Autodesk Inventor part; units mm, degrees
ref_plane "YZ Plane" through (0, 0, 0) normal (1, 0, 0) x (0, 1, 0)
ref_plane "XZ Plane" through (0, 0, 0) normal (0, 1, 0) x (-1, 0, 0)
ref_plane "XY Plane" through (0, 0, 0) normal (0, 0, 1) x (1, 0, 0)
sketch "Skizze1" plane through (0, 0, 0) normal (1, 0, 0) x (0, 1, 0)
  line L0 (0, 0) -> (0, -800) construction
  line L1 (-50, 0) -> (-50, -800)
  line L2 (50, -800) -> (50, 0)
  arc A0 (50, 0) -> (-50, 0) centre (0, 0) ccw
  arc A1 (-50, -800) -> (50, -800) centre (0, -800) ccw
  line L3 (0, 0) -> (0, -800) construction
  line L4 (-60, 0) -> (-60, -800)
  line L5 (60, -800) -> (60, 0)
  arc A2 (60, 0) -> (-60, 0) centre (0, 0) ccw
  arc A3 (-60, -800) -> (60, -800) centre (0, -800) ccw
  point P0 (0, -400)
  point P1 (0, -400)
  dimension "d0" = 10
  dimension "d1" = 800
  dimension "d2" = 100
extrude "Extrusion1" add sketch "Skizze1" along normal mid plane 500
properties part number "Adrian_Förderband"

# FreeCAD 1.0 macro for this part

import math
import FreeCAD as App
import Part
import Sketcher
Q = App.Units.Quantity

doc = App.newDocument("Part")
params = doc.addObject("Spreadsheet::Sheet", "Params")
for row, (alias, value) in enumerate([
    ("sketch1_radius", "50 mm"),
    ("sketch1_height", "800 mm"),
    ("sketch1_radius2", "60 mm"),
    ("pad1_length", "500 mm"),
], start=1):
    params.set(f"A{row}", alias)
    params.set(f"B{row}", "=" + value)
    params.setAlias(f"B{row}", alias)

body = doc.addObject("PartDesign::Body", "Body")

# Sketch on YZ plane
sketch1 = doc.addObject("Sketcher::SketchObject", "Sketch")
body.addObject(sketch1)
sketch1.AttachmentSupport = (doc.YZ_Plane, [""])
sketch1.MapMode = "FlatFace"
sketch1.addGeometry([
    Part.ArcOfCircle(Part.Circle(App.Vector(0, 0, 0), App.Vector(0, 0, 1), 60), math.radians(0), math.radians(180)),  # 0
    Part.LineSegment(App.Vector(-60, 0, 0), App.Vector(-60, -800, 0)),  # 1
    Part.ArcOfCircle(Part.Circle(App.Vector(0, -800, 0), App.Vector(0, 0, 1), 60), math.radians(180), math.radians(360)),  # 2
    Part.LineSegment(App.Vector(60, -800, 0), App.Vector(60, 0, 0)),  # 3
    Part.LineSegment(App.Vector(-50, -800, 0), App.Vector(-50, 0, 0)),  # 4
    Part.ArcOfCircle(Part.Circle(App.Vector(0, 0, 0), App.Vector(0, 0, 1), 50), math.radians(0), math.radians(180)),  # 5
    Part.LineSegment(App.Vector(50, 0, 0), App.Vector(50, -800, 0)),  # 6
    Part.ArcOfCircle(Part.Circle(App.Vector(0, -800, 0), App.Vector(0, 0, 1), 50), math.radians(180), math.radians(360)),  # 7
], False)
sketch1.addConstraint([
    Sketcher.Constraint("Tangent", 0, 2, 1, 1),
    Sketcher.Constraint("Tangent", 1, 2, 2, 1),
    Sketcher.Constraint("Tangent", 2, 2, 3, 1),
    Sketcher.Constraint("Tangent", 3, 2, 0, 1),
    Sketcher.Constraint("Tangent", 4, 2, 5, 2),
    Sketcher.Constraint("Tangent", 5, 1, 6, 1),
    Sketcher.Constraint("Tangent", 6, 2, 7, 2),
    Sketcher.Constraint("Tangent", 7, 1, 4, 1),
    Sketcher.Constraint("Vertical", 1),
    Sketcher.Constraint("Vertical", 3),
    Sketcher.Constraint("Vertical", 4),
    Sketcher.Constraint("Vertical", 6),
    Sketcher.Constraint("Coincident", 0, 3, -1, 1),
    Sketcher.Constraint("Coincident", 5, 3, -1, 1),
    Sketcher.Constraint("Horizontal", 7, 3, 1, 2),
    Sketcher.Constraint("Radius", 5, Q("50 mm")),
    Sketcher.Constraint("DistanceY", 1, 2, 1, 1, Q("800 mm")),
    Sketcher.Constraint("Radius", 0, Q("60 mm")),
])
sketch1.setExpression("Constraints[15]", "Params.sketch1_radius")
sketch1.setExpression("Constraints[16]", "Params.sketch1_height")
sketch1.setExpression("Constraints[17]", "Params.sketch1_radius2")
pad1 = doc.addObject("PartDesign::Pad", "Pad")
body.addObject(pad1)
pad1.Profile = sketch1
pad1.setExpression("Length", "Params.pad1_length")
pad1.Midplane = True

doc.recompute()
